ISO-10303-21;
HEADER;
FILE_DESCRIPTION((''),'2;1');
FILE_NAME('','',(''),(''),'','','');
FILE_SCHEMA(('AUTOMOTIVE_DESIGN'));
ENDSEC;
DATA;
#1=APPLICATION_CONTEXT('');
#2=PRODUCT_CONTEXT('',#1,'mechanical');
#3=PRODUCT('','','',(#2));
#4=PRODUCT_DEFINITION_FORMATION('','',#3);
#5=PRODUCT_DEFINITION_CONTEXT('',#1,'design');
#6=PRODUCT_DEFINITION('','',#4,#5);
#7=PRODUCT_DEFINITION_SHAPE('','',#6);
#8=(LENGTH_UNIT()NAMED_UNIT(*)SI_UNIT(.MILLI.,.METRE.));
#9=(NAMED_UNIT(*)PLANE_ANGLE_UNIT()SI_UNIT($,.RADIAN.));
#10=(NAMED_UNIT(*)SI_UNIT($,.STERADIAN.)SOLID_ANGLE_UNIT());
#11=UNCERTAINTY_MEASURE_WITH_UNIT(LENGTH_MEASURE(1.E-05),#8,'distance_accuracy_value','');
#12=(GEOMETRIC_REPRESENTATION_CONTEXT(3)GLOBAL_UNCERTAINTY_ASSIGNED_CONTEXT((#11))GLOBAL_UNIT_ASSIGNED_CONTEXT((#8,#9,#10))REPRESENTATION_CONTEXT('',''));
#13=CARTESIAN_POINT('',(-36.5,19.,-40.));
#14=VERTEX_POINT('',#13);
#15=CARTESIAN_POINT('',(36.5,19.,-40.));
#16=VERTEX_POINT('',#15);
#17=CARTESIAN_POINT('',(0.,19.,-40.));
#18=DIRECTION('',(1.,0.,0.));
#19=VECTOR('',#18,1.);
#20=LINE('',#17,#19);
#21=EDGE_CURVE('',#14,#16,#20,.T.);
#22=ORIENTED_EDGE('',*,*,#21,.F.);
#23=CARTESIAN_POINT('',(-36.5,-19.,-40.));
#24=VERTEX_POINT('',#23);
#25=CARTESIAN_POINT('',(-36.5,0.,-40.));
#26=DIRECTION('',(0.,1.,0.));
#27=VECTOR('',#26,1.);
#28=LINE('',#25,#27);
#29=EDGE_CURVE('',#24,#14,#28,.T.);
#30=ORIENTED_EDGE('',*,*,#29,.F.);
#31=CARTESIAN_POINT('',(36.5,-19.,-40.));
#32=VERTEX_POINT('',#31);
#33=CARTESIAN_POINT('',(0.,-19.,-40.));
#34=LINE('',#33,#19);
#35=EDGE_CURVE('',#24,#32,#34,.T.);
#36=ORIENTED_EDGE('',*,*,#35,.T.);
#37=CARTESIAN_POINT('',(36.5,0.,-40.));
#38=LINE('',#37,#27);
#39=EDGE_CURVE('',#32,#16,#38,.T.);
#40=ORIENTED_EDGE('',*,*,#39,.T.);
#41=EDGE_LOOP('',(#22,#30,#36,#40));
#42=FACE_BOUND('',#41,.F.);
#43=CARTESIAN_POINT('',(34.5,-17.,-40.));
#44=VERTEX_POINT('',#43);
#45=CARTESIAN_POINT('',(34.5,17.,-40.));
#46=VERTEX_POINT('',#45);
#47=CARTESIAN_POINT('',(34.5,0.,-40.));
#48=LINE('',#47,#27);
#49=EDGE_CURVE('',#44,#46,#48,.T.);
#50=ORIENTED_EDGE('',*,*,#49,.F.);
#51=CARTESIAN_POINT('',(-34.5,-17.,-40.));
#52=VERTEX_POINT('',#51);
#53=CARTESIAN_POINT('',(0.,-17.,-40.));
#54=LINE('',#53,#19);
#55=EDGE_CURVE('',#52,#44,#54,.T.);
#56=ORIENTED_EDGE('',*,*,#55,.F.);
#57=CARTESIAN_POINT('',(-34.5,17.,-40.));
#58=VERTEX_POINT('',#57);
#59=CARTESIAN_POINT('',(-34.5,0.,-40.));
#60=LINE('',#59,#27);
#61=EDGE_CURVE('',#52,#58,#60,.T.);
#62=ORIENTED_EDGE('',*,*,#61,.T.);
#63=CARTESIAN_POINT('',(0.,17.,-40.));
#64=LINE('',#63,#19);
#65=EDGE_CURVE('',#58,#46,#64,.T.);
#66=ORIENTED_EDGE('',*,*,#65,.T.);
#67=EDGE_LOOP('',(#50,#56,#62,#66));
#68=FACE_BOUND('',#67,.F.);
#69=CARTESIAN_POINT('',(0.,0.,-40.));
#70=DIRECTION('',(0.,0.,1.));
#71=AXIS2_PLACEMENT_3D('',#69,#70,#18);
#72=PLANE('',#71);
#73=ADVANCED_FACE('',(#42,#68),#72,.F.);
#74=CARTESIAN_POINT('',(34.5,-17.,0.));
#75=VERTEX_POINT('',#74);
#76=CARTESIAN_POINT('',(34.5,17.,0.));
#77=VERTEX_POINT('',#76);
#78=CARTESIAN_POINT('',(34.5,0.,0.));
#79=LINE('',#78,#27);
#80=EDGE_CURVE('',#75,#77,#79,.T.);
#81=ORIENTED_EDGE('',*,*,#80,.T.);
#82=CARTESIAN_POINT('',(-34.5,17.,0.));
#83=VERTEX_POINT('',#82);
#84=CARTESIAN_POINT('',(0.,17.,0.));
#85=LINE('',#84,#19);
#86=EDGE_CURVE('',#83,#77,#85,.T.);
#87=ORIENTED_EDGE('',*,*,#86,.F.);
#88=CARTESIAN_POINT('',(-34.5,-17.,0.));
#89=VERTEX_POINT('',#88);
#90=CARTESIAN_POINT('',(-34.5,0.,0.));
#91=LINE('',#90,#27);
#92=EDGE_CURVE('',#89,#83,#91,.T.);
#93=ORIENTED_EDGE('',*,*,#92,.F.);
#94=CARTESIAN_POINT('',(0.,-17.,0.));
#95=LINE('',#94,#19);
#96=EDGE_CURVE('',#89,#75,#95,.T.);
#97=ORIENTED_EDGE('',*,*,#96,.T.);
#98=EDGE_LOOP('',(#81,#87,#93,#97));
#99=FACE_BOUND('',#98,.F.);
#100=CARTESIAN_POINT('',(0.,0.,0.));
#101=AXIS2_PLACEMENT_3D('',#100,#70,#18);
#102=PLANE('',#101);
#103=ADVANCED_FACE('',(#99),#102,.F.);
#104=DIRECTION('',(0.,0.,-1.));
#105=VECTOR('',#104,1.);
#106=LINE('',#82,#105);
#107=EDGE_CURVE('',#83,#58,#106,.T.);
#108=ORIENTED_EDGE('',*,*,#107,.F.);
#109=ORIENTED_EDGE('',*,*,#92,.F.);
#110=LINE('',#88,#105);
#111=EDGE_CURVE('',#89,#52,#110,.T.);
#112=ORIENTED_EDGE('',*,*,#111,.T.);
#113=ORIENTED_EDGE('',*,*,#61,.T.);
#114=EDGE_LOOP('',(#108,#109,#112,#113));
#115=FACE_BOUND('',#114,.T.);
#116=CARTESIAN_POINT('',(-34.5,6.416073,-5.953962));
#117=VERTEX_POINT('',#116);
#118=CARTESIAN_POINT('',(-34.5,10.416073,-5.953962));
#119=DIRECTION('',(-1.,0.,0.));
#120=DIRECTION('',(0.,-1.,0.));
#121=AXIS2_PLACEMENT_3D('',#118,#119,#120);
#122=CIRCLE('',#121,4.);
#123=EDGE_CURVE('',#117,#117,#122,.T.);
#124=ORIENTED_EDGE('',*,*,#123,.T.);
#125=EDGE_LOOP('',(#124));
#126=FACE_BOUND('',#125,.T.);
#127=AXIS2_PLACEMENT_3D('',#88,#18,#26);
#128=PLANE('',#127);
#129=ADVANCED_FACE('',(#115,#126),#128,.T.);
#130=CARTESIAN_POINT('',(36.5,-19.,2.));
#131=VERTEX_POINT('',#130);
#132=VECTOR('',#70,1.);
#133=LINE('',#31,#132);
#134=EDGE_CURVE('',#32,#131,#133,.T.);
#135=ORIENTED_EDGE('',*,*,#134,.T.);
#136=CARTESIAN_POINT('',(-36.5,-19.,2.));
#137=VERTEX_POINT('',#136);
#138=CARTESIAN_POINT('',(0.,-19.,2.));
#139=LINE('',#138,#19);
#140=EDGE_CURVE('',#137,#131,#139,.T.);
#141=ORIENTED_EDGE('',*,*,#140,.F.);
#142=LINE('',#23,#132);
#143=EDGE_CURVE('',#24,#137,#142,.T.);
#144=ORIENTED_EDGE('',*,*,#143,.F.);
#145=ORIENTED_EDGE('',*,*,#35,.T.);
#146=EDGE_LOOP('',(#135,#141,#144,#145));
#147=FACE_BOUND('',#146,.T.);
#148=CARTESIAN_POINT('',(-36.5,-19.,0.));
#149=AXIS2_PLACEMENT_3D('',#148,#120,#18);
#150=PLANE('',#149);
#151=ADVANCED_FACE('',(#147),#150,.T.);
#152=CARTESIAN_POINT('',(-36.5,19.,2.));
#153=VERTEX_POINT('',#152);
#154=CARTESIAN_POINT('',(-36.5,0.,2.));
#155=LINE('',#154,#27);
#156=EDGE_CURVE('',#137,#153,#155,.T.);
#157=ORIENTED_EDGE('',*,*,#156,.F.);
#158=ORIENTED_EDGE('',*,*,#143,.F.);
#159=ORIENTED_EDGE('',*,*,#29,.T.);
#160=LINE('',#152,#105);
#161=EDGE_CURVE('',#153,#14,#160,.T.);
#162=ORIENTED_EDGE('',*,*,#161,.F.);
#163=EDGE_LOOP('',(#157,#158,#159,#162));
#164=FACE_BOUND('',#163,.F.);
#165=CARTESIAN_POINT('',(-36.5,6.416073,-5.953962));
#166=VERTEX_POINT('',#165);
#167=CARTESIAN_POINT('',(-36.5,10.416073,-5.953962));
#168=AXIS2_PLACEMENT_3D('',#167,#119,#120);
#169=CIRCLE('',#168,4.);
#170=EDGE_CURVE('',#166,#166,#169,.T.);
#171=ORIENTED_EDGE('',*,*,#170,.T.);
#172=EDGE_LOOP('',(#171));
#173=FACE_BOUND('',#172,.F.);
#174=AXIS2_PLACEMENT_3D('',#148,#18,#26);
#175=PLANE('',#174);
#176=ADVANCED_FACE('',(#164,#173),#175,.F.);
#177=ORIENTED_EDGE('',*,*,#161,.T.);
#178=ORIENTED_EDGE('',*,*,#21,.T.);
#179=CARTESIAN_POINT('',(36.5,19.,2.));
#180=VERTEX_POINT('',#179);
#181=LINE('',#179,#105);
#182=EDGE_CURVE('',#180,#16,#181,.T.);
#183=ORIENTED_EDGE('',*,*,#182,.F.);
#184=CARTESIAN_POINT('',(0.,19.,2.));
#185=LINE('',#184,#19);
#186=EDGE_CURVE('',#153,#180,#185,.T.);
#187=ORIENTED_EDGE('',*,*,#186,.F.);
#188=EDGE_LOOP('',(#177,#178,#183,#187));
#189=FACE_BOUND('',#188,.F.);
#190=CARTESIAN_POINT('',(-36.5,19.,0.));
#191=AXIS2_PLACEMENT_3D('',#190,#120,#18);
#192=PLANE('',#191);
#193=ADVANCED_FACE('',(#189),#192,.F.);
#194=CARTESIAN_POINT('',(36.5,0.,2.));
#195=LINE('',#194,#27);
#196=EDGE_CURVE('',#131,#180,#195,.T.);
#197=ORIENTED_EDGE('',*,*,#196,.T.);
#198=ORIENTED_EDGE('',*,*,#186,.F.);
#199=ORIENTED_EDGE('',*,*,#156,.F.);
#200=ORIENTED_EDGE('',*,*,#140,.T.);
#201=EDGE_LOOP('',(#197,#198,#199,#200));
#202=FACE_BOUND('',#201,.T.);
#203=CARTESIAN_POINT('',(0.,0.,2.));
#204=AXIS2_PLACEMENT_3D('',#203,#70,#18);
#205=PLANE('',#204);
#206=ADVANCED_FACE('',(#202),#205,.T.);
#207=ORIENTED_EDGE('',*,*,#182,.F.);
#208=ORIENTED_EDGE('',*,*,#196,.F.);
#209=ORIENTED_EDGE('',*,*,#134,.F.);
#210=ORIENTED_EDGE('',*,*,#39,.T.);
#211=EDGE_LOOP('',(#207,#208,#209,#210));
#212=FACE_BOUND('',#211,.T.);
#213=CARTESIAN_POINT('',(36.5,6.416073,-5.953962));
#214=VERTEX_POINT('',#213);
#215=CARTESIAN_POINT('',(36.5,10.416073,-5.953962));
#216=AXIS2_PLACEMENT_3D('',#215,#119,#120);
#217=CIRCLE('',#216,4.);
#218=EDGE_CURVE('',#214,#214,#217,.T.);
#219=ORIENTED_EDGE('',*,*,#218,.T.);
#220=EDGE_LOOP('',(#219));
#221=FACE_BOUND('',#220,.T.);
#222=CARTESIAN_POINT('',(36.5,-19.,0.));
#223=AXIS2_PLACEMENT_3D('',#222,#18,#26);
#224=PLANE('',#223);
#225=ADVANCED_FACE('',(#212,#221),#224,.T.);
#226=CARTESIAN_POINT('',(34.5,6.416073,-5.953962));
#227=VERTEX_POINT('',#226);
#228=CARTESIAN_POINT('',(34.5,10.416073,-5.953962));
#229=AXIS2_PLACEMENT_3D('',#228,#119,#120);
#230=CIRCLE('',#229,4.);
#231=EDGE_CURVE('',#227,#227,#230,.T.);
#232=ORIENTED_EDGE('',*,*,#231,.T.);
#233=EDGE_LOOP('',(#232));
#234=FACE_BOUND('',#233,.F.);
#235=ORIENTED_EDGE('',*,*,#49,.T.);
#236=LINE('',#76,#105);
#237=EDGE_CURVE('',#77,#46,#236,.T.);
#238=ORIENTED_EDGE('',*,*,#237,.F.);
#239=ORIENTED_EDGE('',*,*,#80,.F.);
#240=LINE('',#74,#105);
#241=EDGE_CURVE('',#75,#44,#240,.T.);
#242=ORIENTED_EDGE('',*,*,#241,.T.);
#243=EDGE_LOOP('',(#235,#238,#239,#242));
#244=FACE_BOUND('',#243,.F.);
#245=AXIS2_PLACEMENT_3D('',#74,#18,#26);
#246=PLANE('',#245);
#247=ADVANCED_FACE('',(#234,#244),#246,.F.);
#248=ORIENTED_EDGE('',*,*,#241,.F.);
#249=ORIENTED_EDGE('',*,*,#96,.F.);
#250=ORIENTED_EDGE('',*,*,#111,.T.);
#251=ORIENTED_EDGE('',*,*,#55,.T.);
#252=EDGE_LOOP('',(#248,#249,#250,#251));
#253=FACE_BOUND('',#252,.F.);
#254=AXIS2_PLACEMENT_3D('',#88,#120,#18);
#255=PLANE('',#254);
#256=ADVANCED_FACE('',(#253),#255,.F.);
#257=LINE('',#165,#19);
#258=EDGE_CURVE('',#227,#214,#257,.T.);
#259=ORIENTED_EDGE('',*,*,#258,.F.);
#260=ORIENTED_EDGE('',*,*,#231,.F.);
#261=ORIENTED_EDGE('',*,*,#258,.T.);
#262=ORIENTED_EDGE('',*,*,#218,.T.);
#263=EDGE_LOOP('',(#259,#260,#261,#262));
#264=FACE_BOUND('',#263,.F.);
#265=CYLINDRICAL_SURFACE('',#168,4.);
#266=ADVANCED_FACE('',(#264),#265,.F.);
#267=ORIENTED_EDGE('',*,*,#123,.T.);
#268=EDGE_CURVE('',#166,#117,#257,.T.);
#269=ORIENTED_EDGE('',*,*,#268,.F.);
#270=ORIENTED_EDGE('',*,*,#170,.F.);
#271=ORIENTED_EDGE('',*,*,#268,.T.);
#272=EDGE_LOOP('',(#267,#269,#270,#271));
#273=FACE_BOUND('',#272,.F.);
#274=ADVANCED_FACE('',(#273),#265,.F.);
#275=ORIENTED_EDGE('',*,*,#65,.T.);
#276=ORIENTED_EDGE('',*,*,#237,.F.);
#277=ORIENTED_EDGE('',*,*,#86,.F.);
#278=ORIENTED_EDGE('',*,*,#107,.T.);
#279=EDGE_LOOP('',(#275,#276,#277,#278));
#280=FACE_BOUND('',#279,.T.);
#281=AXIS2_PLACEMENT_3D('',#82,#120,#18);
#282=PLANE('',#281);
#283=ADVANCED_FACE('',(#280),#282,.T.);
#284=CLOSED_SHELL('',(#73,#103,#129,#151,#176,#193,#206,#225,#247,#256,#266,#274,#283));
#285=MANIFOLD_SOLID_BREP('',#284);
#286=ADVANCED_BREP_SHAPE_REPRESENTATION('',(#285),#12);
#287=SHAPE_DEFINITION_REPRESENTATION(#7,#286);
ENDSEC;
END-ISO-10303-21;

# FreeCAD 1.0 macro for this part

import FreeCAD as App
import Part
import Sketcher

doc = App.newDocument("Part")
body = doc.addObject("PartDesign::Body", "Body")

sketch1 = body.newObject("Sketcher::SketchObject", "Sketch")
sketch1.AttachmentSupport = (doc.getObject("XY_Plane"), [""])
sketch1.MapMode = "FlatFace"
sketch1.addGeometry([
    Part.LineSegment(App.Vector(-36, 19, 0), App.Vector(-36, -19, 0)),
    Part.LineSegment(App.Vector(-36, -19, 0), App.Vector(36, -19, 0)),
    Part.LineSegment(App.Vector(36, -19, 0), App.Vector(36, 19, 0)),
    Part.LineSegment(App.Vector(36, 19, 0), App.Vector(-36, 19, 0)),
], False)
sketch1.addConstraint([
    Sketcher.Constraint("Coincident", 0, 2, 1, 1),
    Sketcher.Constraint("Coincident", 1, 2, 2, 1),
    Sketcher.Constraint("Coincident", 2, 2, 3, 1),
    Sketcher.Constraint("Coincident", 3, 2, 0, 1),
    Sketcher.Constraint("Vertical", 0),
    Sketcher.Constraint("Horizontal", 1),
    Sketcher.Constraint("Vertical", 2),
    Sketcher.Constraint("Horizontal", 3),
    Sketcher.Constraint("Symmetric", 0, 2, 2, 2, -1, 1),
    Sketcher.Constraint("DistanceX", 1, 1, 1, 2, 73.0),
    Sketcher.Constraint("DistanceY", 0, 2, 0, 1, 38.0),
])
pad1 = body.newObject("PartDesign::Pad", "Pad")
pad1.Profile = sketch1
pad1.Length = 2

sketch2 = body.newObject("Sketcher::SketchObject", "Sketch001")
sketch2.AttachmentSupport = (doc.getObject("XY_Plane"), [""])
sketch2.MapMode = "FlatFace"
sketch2.addGeometry([
    Part.LineSegment(App.Vector(-36, 19, 0), App.Vector(-36, -19, 0)),
    Part.LineSegment(App.Vector(-36, -19, 0), App.Vector(36, -19, 0)),
    Part.LineSegment(App.Vector(36, -19, 0), App.Vector(36, 19, 0)),
    Part.LineSegment(App.Vector(36, 19, 0), App.Vector(-36, 19, 0)),
    Part.LineSegment(App.Vector(34, -17, 0), App.Vector(-34, -17, 0)),
    Part.LineSegment(App.Vector(-34, -17, 0), App.Vector(-34, 17, 0)),
    Part.LineSegment(App.Vector(-34, 17, 0), App.Vector(34, 17, 0)),
    Part.LineSegment(App.Vector(34, 17, 0), App.Vector(34, -17, 0)),
], False)
sketch2.addConstraint([
    Sketcher.Constraint("Coincident", 0, 2, 1, 1),
    Sketcher.Constraint("Coincident", 1, 2, 2, 1),
    Sketcher.Constraint("Coincident", 2, 2, 3, 1),
    Sketcher.Constraint("Coincident", 3, 2, 0, 1),
    Sketcher.Constraint("Coincident", 4, 2, 5, 1),
    Sketcher.Constraint("Coincident", 5, 2, 6, 1),
    Sketcher.Constraint("Coincident", 6, 2, 7, 1),
    Sketcher.Constraint("Coincident", 7, 2, 4, 1),
    Sketcher.Constraint("Vertical", 0),
    Sketcher.Constraint("Horizontal", 1),
    Sketcher.Constraint("Vertical", 2),
    Sketcher.Constraint("Horizontal", 3),
    Sketcher.Constraint("Horizontal", 4),
    Sketcher.Constraint("Vertical", 5),
    Sketcher.Constraint("Horizontal", 6),
    Sketcher.Constraint("Vertical", 7),
    Sketcher.Constraint("Symmetric", 0, 2, 2, 2, -1, 1),
    Sketcher.Constraint("Symmetric", 4, 2, 6, 2, -1, 1),
    Sketcher.Constraint("DistanceX", 1, 1, 1, 2, 73.0),
    Sketcher.Constraint("DistanceX", 4, 2, 4, 1, 69.0),
    Sketcher.Constraint("DistanceY", 0, 2, 0, 1, 38.0),
    Sketcher.Constraint("DistanceY", 5, 1, 5, 2, 34.0),
])
pad2 = body.newObject("PartDesign::Pad", "Pad001")
pad2.Profile = sketch2
pad2.Length = 40
pad2.Reversed = True

sketch3 = body.newObject("Sketcher::SketchObject", "Sketch002")
sketch3.AttachmentSupport = (doc.getObject("YZ_Plane"), [""])
sketch3.MapMode = "FlatFace"
sketch3.AttachmentOffset = App.Placement(App.Vector(0, 0, -36.5), App.Rotation())
sketch3.addGeometry(Part.Circle(App.Vector(10.4, -6, 0), App.Vector(0, 0, 1), 4), False)
sketch3.addConstraint([
    Sketcher.Constraint("Diameter", 0, 8.0),
    Sketcher.Constraint("DistanceY", 0, 3, -1, 1, 5.953962),
    Sketcher.Constraint("DistanceX", -1, 1, 0, 3, 10.416073),
])
pocket1 = body.newObject("PartDesign::Pocket", "Pocket")
pocket1.Profile = sketch3
pocket1.Type = "ThroughAll"
pocket1.Reversed = True

doc.recompute()
